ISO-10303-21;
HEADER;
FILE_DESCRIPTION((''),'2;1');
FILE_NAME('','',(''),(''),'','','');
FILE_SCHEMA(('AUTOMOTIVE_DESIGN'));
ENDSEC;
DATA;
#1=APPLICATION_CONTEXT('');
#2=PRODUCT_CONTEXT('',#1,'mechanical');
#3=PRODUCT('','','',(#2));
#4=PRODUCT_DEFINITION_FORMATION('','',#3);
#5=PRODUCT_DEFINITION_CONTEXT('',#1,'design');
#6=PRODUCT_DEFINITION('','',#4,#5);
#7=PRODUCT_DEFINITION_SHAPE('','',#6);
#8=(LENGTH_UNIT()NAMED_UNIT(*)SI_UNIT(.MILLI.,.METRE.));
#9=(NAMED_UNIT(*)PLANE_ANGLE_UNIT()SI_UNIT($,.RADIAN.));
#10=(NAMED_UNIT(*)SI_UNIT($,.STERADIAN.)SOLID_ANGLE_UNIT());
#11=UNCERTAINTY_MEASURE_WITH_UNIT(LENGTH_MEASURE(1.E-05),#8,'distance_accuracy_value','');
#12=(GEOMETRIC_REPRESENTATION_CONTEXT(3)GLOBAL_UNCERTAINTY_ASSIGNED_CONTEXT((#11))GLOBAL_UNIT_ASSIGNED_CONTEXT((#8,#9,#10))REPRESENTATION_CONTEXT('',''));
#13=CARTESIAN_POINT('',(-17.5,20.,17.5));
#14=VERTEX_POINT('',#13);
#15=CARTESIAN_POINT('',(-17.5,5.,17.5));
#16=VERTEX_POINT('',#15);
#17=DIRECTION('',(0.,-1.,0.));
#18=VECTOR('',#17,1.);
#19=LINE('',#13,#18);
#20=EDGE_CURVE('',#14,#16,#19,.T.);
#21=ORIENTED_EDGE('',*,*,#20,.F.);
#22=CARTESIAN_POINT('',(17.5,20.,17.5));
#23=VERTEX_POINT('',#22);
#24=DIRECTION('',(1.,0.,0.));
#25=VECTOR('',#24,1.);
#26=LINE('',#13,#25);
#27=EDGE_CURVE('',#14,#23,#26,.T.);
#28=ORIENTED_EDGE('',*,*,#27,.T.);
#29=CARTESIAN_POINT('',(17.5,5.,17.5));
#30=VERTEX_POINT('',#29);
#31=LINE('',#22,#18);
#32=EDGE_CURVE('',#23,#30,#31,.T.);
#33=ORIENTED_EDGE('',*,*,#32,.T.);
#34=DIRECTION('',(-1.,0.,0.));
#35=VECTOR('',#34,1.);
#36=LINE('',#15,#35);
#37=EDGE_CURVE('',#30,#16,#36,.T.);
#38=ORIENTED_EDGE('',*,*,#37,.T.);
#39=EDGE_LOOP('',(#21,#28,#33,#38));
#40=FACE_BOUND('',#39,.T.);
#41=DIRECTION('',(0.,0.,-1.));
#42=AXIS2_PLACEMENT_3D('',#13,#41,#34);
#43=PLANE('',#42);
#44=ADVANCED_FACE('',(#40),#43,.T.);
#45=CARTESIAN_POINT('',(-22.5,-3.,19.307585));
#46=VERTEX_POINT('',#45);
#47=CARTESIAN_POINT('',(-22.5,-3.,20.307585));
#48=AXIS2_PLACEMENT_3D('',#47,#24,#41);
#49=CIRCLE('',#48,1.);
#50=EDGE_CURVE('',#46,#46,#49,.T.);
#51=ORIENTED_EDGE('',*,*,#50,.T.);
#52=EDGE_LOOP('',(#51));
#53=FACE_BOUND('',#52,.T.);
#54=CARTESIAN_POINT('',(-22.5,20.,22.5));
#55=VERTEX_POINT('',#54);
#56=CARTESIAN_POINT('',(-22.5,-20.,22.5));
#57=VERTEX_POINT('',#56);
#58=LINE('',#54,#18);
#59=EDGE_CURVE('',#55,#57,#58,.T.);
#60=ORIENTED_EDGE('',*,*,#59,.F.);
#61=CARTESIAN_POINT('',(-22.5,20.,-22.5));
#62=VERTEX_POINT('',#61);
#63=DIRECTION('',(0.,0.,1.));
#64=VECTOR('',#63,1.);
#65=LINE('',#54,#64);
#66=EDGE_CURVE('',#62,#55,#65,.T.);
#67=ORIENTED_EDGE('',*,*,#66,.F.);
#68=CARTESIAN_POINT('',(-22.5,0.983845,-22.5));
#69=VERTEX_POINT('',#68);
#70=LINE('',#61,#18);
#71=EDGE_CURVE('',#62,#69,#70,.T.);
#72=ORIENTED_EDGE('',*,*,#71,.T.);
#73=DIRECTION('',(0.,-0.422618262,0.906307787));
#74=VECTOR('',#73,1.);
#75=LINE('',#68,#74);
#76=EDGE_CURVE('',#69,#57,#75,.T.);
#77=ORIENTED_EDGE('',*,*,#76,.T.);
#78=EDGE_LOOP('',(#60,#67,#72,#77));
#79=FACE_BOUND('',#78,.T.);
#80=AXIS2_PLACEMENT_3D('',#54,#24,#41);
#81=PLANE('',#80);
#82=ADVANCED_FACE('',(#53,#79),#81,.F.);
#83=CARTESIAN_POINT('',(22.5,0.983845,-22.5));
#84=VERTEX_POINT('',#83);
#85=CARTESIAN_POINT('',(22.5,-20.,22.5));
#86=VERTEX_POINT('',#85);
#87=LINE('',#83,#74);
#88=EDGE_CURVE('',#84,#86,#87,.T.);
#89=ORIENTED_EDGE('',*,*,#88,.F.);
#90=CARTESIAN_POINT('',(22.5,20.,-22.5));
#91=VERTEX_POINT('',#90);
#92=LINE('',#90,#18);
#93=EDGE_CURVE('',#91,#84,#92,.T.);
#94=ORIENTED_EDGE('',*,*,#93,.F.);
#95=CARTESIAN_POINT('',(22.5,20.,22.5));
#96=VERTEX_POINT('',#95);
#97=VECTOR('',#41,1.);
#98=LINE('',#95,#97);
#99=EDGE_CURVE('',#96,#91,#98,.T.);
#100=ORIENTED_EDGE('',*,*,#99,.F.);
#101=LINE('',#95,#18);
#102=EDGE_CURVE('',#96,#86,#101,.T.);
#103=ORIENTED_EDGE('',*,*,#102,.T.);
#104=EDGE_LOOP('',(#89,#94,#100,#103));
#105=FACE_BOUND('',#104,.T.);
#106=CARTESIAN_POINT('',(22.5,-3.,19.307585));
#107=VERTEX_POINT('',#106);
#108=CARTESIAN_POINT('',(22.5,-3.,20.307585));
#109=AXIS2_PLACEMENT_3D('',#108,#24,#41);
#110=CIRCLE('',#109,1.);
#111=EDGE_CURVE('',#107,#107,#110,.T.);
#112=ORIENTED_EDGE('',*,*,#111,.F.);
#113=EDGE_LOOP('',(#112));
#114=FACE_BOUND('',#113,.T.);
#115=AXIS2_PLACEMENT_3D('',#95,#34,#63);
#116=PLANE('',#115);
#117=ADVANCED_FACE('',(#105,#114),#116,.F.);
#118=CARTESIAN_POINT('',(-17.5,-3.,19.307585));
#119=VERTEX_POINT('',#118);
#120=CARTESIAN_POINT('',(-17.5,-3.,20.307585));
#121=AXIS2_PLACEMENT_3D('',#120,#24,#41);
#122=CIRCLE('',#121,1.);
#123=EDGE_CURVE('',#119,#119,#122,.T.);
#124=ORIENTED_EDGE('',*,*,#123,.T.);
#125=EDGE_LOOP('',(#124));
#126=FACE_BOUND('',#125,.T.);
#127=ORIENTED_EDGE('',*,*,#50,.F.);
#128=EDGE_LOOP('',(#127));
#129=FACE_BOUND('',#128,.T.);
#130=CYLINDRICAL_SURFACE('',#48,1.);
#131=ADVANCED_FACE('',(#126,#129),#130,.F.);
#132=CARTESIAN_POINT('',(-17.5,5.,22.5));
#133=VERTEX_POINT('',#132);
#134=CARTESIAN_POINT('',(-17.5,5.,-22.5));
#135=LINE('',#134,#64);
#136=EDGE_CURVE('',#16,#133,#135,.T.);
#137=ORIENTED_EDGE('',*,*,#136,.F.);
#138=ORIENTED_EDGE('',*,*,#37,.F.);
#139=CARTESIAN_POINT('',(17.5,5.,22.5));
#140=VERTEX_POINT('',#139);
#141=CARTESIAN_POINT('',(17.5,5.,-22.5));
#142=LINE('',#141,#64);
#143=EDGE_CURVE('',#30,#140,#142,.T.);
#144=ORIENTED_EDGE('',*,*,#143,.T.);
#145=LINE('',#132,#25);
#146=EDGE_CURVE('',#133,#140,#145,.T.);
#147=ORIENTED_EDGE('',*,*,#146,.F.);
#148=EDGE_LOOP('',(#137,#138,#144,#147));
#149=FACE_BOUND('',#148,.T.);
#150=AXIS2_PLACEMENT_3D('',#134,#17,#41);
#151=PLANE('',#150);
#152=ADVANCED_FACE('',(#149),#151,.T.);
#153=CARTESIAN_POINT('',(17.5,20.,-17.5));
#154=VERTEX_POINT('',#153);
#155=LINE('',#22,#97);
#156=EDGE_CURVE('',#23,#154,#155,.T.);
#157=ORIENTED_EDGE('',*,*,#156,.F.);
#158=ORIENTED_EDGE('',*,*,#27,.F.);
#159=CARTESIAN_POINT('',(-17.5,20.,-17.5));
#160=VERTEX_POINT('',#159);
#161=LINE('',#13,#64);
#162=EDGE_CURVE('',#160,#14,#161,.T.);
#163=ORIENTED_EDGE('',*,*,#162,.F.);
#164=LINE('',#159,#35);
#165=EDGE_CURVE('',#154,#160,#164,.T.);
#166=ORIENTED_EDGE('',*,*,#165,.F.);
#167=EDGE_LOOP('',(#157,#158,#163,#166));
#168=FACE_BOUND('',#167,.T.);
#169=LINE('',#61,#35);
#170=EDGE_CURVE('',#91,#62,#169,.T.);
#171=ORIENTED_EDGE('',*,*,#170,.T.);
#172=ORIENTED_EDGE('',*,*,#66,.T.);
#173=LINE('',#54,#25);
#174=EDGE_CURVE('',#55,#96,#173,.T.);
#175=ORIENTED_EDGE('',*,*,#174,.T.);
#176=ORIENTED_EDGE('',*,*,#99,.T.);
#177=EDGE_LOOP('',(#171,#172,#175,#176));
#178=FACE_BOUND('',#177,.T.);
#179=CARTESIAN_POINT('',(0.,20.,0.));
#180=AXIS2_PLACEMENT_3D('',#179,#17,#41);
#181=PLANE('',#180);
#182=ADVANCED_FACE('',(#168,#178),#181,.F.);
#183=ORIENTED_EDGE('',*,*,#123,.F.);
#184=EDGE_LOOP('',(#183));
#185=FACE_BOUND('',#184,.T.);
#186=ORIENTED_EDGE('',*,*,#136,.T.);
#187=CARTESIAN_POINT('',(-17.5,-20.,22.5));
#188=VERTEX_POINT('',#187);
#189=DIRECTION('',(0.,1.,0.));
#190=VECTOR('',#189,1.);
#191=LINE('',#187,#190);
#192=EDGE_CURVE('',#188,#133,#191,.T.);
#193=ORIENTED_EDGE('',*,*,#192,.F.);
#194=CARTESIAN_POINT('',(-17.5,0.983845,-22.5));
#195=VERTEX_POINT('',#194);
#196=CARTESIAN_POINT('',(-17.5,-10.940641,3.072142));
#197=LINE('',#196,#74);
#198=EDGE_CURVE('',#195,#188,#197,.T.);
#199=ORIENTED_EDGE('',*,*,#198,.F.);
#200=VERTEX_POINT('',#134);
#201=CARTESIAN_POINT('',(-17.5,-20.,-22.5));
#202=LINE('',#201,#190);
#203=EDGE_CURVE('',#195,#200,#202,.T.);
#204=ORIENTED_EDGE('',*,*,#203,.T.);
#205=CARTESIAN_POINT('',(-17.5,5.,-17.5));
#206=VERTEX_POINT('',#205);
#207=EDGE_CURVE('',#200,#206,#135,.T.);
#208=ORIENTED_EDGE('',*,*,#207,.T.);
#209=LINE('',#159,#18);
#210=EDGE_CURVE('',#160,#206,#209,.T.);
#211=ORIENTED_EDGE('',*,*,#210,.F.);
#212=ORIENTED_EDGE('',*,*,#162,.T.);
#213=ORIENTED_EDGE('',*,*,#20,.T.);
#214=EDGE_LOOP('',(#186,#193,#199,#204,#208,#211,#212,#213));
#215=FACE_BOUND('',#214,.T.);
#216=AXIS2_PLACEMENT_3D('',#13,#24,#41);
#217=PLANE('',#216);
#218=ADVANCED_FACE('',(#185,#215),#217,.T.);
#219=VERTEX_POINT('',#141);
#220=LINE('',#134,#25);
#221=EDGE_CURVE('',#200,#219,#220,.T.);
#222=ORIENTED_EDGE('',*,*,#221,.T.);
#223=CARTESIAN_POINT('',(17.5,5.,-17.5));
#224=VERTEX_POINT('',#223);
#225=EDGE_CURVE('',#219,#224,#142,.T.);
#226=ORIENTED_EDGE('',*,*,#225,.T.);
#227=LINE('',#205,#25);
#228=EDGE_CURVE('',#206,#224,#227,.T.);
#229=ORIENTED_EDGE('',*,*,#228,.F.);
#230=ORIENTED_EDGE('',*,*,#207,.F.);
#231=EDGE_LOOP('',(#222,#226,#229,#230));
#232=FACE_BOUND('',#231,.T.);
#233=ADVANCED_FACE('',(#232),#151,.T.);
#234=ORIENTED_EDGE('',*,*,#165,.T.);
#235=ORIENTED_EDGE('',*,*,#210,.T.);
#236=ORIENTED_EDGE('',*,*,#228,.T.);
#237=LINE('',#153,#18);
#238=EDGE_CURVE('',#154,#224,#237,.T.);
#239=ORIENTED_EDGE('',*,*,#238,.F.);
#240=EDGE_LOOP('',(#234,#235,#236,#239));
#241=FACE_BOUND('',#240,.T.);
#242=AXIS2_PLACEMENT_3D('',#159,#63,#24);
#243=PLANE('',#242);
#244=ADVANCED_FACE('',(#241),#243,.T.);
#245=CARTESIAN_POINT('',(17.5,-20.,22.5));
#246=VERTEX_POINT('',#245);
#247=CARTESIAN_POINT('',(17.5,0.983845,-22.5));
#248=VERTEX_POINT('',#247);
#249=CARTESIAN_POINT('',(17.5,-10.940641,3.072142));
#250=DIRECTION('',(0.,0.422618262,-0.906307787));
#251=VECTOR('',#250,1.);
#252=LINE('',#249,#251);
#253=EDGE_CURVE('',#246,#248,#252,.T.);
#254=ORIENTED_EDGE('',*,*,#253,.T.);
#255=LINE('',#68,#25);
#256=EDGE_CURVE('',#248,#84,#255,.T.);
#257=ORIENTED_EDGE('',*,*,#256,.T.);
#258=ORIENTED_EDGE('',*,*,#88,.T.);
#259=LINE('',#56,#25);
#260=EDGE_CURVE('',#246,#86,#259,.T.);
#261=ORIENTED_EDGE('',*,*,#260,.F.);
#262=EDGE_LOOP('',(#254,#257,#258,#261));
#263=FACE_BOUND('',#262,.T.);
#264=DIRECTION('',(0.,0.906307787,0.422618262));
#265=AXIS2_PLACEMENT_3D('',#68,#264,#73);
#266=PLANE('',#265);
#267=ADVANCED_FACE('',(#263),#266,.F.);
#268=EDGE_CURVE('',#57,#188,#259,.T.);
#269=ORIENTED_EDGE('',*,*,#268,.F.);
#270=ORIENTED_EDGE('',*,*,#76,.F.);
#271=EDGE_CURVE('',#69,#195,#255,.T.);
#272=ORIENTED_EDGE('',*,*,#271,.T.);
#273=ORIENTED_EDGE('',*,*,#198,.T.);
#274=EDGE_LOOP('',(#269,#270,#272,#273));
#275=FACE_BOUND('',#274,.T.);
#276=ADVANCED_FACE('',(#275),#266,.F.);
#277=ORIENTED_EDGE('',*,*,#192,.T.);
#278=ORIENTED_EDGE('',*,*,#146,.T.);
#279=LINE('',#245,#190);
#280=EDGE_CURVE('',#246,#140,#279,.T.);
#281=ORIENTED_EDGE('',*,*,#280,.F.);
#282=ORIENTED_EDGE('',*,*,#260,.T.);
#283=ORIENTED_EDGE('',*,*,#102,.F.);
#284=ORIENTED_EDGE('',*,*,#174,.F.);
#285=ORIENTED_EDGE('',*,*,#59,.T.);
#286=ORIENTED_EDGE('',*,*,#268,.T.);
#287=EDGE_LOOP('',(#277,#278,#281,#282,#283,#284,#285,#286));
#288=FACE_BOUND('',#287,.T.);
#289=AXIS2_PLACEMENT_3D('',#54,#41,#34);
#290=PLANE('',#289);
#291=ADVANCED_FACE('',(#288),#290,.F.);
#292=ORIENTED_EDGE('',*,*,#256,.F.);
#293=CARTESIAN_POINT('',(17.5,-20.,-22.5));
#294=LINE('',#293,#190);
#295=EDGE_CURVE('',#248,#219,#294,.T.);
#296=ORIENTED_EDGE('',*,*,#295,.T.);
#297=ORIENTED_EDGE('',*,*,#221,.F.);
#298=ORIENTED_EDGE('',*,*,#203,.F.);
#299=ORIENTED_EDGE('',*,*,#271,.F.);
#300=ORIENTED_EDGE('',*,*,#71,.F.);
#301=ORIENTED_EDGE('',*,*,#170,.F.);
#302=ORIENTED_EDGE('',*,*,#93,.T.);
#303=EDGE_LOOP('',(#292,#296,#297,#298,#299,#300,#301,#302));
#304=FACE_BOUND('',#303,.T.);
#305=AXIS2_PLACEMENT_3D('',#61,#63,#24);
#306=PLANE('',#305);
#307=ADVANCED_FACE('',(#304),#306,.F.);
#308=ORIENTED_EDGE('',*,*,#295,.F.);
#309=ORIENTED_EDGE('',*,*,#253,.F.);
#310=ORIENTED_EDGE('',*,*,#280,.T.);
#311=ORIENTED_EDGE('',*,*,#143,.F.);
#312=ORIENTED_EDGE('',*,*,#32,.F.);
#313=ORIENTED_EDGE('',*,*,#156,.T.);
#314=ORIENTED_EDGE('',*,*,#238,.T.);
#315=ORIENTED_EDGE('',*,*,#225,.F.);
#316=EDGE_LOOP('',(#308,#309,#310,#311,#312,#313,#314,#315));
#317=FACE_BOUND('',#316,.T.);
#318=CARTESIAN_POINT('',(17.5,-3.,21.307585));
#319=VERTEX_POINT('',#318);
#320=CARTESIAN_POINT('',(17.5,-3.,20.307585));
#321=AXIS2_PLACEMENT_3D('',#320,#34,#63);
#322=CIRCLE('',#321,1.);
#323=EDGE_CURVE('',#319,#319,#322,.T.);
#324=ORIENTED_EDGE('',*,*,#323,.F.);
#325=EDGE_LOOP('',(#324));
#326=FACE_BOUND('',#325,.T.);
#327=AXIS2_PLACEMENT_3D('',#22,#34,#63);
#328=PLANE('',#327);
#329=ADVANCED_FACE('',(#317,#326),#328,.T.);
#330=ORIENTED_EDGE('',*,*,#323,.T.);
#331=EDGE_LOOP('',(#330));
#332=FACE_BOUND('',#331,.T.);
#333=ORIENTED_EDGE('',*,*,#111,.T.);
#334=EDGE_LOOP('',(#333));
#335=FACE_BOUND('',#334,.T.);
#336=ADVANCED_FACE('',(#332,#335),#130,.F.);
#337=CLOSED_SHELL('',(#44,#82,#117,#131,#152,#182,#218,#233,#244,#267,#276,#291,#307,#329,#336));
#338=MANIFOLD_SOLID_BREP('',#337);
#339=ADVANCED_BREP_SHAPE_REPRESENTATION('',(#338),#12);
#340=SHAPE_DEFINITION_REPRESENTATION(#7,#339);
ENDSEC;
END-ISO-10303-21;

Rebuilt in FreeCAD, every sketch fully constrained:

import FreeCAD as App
import Part
import Sketcher
Q = App.Units.Quantity

doc = App.newDocument("Part")
body = doc.addObject("PartDesign::Body", "Body")

# Sketch on XZ plane
sketch1 = body.newObject("Sketcher::SketchObject", "Sketch")
sketch1.AttachmentSupport = (doc.getObject("XZ_Plane"), [""])
sketch1.MapMode = "FlatFace"
sketch1.addGeometry([
    Part.LineSegment(App.Vector(-22.5, -22.5, 0), App.Vector(-22.5, 22.5, 0)),  # 0
    Part.LineSegment(App.Vector(-22.5, 22.5, 0), App.Vector(22.5, 22.5, 0)),  # 1
    Part.LineSegment(App.Vector(22.5, 22.5, 0), App.Vector(22.5, -22.5, 0)),  # 2
    Part.LineSegment(App.Vector(22.5, -22.5, 0), App.Vector(-22.5, -22.5, 0)),  # 3
    Part.LineSegment(App.Vector(17.5, 17.5, 0), App.Vector(-17.5, 17.5, 0)),  # 4
    Part.LineSegment(App.Vector(-17.5, 17.5, 0), App.Vector(-17.5, -17.5, 0)),  # 5
    Part.LineSegment(App.Vector(-17.5, -17.5, 0), App.Vector(17.5, -17.5, 0)),  # 6
    Part.LineSegment(App.Vector(17.5, -17.5, 0), App.Vector(17.5, 17.5, 0)),  # 7
], False)
sketch1.addConstraint([
    Sketcher.Constraint("Coincident", 0, 2, 1, 1),
    Sketcher.Constraint("Coincident", 1, 2, 2, 1),
    Sketcher.Constraint("Coincident", 2, 2, 3, 1),
    Sketcher.Constraint("Coincident", 3, 2, 0, 1),
    Sketcher.Constraint("Coincident", 4, 2, 5, 1),
    Sketcher.Constraint("Coincident", 5, 2, 6, 1),
    Sketcher.Constraint("Coincident", 6, 2, 7, 1),
    Sketcher.Constraint("Coincident", 7, 2, 4, 1),
    Sketcher.Constraint("Vertical", 0),
    Sketcher.Constraint("Horizontal", 1),
    Sketcher.Constraint("Vertical", 2),
    Sketcher.Constraint("Horizontal", 3),
    Sketcher.Constraint("Horizontal", 4),
    Sketcher.Constraint("Vertical", 5),
    Sketcher.Constraint("Horizontal", 6),
    Sketcher.Constraint("Vertical", 7),
    Sketcher.Constraint("Symmetric", 0, 2, 2, 2, -1, 1),
    Sketcher.Constraint("Symmetric", 4, 2, 6, 2, -1, 1),
    Sketcher.Constraint("Equal", 3, 0),
    Sketcher.Constraint("Equal", 6, 5),
    Sketcher.Constraint("DistanceX", 1, 1, 1, 2, Q("45 mm")),
    Sketcher.Constraint("DistanceX", 4, 2, 4, 1, Q("35 mm")),
])
pad1 = body.newObject("PartDesign::Pad", "Pad")
pad1.Profile = sketch1
pad1.Length = 40
pad1.Midplane = True

# Sketch on YZ plane
sketch2 = body.newObject("Sketcher::SketchObject", "Sketch001")
sketch2.AttachmentSupport = (doc.getObject("YZ_Plane"), [""])
sketch2.MapMode = "FlatFace"
sketch2.AttachmentOffset = App.Placement(App.Vector(0, 0, 22.5), App.Rotation())
sketch2.addGeometry([
    Part.LineSegment(App.Vector(-20, 22.5, 0), App.Vector(-20, -22.5, 0)),
    Part.LineSegment(App.Vector(-20, -22.5, 0), App.Vector(0.983845, -22.5, 0)),
    Part.LineSegment(App.Vector(0.983845, -22.5, 0), App.Vector(-20, 22.5, 0)),
], False)
sketch2.addConstraint([
    Sketcher.Constraint("Coincident", 0, 2, 1, 1),
    Sketcher.Constraint("Coincident", 1, 2, 2, 1),
    Sketcher.Constraint("Coincident", 2, 2, 0, 1),
    Sketcher.Constraint("Vertical", 0),
    Sketcher.Constraint("Horizontal", 1),
    Sketcher.Constraint("DistanceY", 0, 2, 0, 1, Q("45 mm")),
    Sketcher.Constraint("Angle", 2, Q("115 deg")),
    Sketcher.Constraint("DistanceX", 0, 2, -1, 1, Q("20 mm")),
    Sketcher.Constraint("DistanceY", 0, 2, -1, 1, Q("22.5 mm")),
])
pocket1 = body.newObject("PartDesign::Pocket", "Pocket")
pocket1.Profile = sketch2
pocket1.Type = "ThroughAll"

# Sketch on XY plane
sketch3 = body.newObject("Sketcher::SketchObject", "Sketch002")
sketch3.AttachmentSupport = (doc.getObject("XY_Plane"), [""])
sketch3.MapMode = "FlatFace"
sketch3.AttachmentOffset = App.Placement(App.Vector(0, 0, 22.5), App.Rotation())
sketch3.addGeometry([
    Part.LineSegment(App.Vector(-17.5, 5, 0), App.Vector(-17.5, -20, 0)),
    Part.LineSegment(App.Vector(-17.5, -20, 0), App.Vector(17.5, -20, 0)),
    Part.LineSegment(App.Vector(17.5, -20, 0), App.Vector(17.5, 5, 0)),
    Part.LineSegment(App.Vector(17.5, 5, 0), App.Vector(-17.5, 5, 0)),
], False)
sketch3.addConstraint([
    Sketcher.Constraint("Coincident", 0, 2, 1, 1),
    Sketcher.Constraint("Coincident", 1, 2, 2, 1),
    Sketcher.Constraint("Coincident", 2, 2, 3, 1),
    Sketcher.Constraint("Coincident", 3, 2, 0, 1),
    Sketcher.Constraint("Vertical", 0),
    Sketcher.Constraint("Horizontal", 1),
    Sketcher.Constraint("Vertical", 2),
    Sketcher.Constraint("Horizontal", 3),
    Sketcher.Constraint("DistanceX", 1, 1, 1, 2, Q("35 mm")),
    Sketcher.Constraint("DistanceY", 0, 2, 0, 1, Q("25 mm")),
    Sketcher.Constraint("DistanceY", 0, 2, -1, 1, Q("20 mm")),
    Sketcher.Constraint("DistanceX", 0, 2, -1, 1, Q("17.5 mm")),
])
pocket2 = body.newObject("PartDesign::Pocket", "Pocket001")
pocket2.Profile = sketch3
pocket2.Type = "ThroughAll"

# Sketch on YZ plane
sketch4 = body.newObject("Sketcher::SketchObject", "Sketch003")
sketch4.AttachmentSupport = (doc.getObject("YZ_Plane"), [""])
sketch4.MapMode = "FlatFace"
sketch4.AttachmentOffset = App.Placement(App.Vector(0, 0, 22.5), App.Rotation())
sketch4.addGeometry(Part.Circle(App.Vector(-3, 20.307585, 0), App.Vector(0, 0, 1), 1), False)
sketch4.addConstraint([
    Sketcher.Constraint("Diameter", 0, Q("2 mm")),
    Sketcher.Constraint("DistanceX", 0, 3, -1, 1, Q("3 mm")),
    Sketcher.Constraint("DistanceY", -1, 1, 0, 3, Q("20.307585 mm")),
])
pocket3 = body.newObject("PartDesign::Pocket", "Pocket002")
pocket3.Profile = sketch4
pocket3.Type = "ThroughAll"

doc.recompute()
